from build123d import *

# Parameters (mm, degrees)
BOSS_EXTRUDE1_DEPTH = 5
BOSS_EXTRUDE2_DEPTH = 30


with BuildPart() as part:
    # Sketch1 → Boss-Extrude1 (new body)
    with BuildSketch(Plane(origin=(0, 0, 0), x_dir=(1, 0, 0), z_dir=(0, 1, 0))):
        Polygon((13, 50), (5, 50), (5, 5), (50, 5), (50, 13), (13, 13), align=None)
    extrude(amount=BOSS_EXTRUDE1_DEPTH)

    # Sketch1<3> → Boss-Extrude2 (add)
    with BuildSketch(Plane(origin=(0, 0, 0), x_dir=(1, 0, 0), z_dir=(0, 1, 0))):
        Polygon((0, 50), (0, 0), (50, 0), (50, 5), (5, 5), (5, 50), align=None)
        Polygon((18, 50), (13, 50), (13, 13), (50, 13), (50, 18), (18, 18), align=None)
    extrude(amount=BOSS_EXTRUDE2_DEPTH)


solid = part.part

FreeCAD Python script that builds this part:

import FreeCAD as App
import Part
import Sketcher
from FreeCAD import Vector
Q = App.Units.Quantity

doc = App.newDocument("Part")
body = doc.addObject("PartDesign::Body", "Body")

# Sketch on XZ plane
sketch1 = body.newObject("Sketcher::SketchObject", "Sketch")
sketch1.AttachmentSupport = (doc.getObject("XZ_Plane"), [""])
sketch1.MapMode = "FlatFace"
sketch1.addGeometry([
    Part.LineSegment(Vector(13, -50, 0), Vector(5, -50, 0)),  # 0
    Part.LineSegment(Vector(5, -50, 0), Vector(5, -5, 0)),  # 1
    Part.LineSegment(Vector(5, -5, 0), Vector(50, -5, 0)),  # 2
    Part.LineSegment(Vector(50, -5, 0), Vector(50, -13, 0)),  # 3
    Part.LineSegment(Vector(50, -13, 0), Vector(13, -13, 0)),  # 4
    Part.LineSegment(Vector(13, -13, 0), Vector(13, -50, 0)),  # 5
], False)
sketch1.addConstraint([
    Sketcher.Constraint("Coincident", 0, 2, 1, 1),
    Sketcher.Constraint("Coincident", 1, 2, 2, 1),
    Sketcher.Constraint("Coincident", 2, 2, 3, 1),
    Sketcher.Constraint("Coincident", 3, 2, 4, 1),
    Sketcher.Constraint("Coincident", 4, 2, 5, 1),
    Sketcher.Constraint("Coincident", 5, 2, 0, 1),
    Sketcher.Constraint("Horizontal", 0),
    Sketcher.Constraint("Vertical", 1),
    Sketcher.Constraint("Horizontal", 2),
    Sketcher.Constraint("Vertical", 3),
    Sketcher.Constraint("Horizontal", 4),
    Sketcher.Constraint("Vertical", 5),
    Sketcher.Constraint("Equal", 2, 1),
    Sketcher.Constraint("Equal", 0, 3),
    Sketcher.Constraint("DistanceX", 0, 2, 0, 1, Q("8 mm")),
    Sketcher.Constraint("DistanceX", 2, 1, 2, 2, Q("45 mm")),
    Sketcher.Constraint("DistanceX", -1, 1, 0, 2, Q("5 mm")),
    Sketcher.Constraint("DistanceY", 0, 2, -1, 1, Q("50 mm")),
])
pad1 = body.newObject("PartDesign::Pad", "Pad")
pad1.Profile = sketch1
pad1.Length = 5
pad1.Reversed = True

# Sketch on XZ plane
sketch2 = body.newObject("Sketcher::SketchObject", "Sketch001")
sketch2.AttachmentSupport = (doc.getObject("XZ_Plane"), [""])
sketch2.MapMode = "FlatFace"
sketch2.addGeometry([
    Part.LineSegment(Vector(0, -50, 0), Vector(0, 0, 0)),  # 0
    Part.LineSegment(Vector(0, 0, 0), Vector(50, 0, 0)),  # 1
    Part.LineSegment(Vector(50, 0, 0), Vector(50, -5, 0)),  # 2
    Part.LineSegment(Vector(50, -5, 0), Vector(5, -5, 0)),  # 3
    Part.LineSegment(Vector(5, -5, 0), Vector(5, -50, 0)),  # 4
    Part.LineSegment(Vector(5, -50, 0), Vector(0, -50, 0)),  # 5
    Part.LineSegment(Vector(18, -50, 0), Vector(13, -50, 0)),  # 6
    Part.LineSegment(Vector(13, -50, 0), Vector(13, -13, 0)),  # 7
    Part.LineSegment(Vector(13, -13, 0), Vector(50, -13, 0)),  # 8
    Part.LineSegment(Vector(50, -13, 0), Vector(50, -18, 0)),  # 9
    Part.LineSegment(Vector(50, -18, 0), Vector(18, -18, 0)),  # 10
    Part.LineSegment(Vector(18, -18, 0), Vector(18, -50, 0)),  # 11
], False)
sketch2.addConstraint([
    Sketcher.Constraint("Coincident", 0, 2, 1, 1),
    Sketcher.Constraint("Coincident", 1, 2, 2, 1),
    Sketcher.Constraint("Coincident", 2, 2, 3, 1),
    Sketcher.Constraint("Coincident", 3, 2, 4, 1),
    Sketcher.Constraint("Coincident", 4, 2, 5, 1),
    Sketcher.Constraint("Coincident", 5, 2, 0, 1),
    Sketcher.Constraint("Coincident", 6, 2, 7, 1),
    Sketcher.Constraint("Coincident", 7, 2, 8, 1),
    Sketcher.Constraint("Coincident", 8, 2, 9, 1),
    Sketcher.Constraint("Coincident", 9, 2, 10, 1),
    Sketcher.Constraint("Coincident", 10, 2, 11, 1),
    Sketcher.Constraint("Coincident", 11, 2, 6, 1),
    Sketcher.Constraint("Vertical", 0),
    Sketcher.Constraint("Horizontal", 1),
    Sketcher.Constraint("Vertical", 2),
    Sketcher.Constraint("Horizontal", 3),
    Sketcher.Constraint("Vertical", 4),
    Sketcher.Constraint("Horizontal", 5),
    Sketcher.Constraint("Horizontal", 6),
    Sketcher.Constraint("Vertical", 7),
    Sketcher.Constraint("Horizontal", 8),
    Sketcher.Constraint("Vertical", 9),
    Sketcher.Constraint("Horizontal", 10),
    Sketcher.Constraint("Vertical", 11),
    Sketcher.Constraint("Coincident", 0, 2, -1, 1),
    Sketcher.Constraint("Horizontal", 5, 2, 6, 2),
    Sketcher.Constraint("Vertical", 2, 2, 8, 2),
    Sketcher.Constraint("Equal", 5, 6),
    Sketcher.Constraint("Equal", 1, 0),
    Sketcher.Constraint("Equal", 6, 2),
    Sketcher.Constraint("Equal", 8, 7),
    Sketcher.Constraint("Equal", 2, 9),
    Sketcher.Constraint("DistanceX", 1, 1, 1, 2, Q("50 mm")),
    Sketcher.Constraint("DistanceX", 3, 2, 3, 1, Q("45 mm")),
    Sketcher.Constraint("DistanceX", 8, 1, 8, 2, Q("37 mm")),
])
pad2 = body.newObject("PartDesign::Pad", "Pad001")
pad2.Profile = sketch2
pad2.Length = 30
pad2.Reversed = True

doc.recompute()
